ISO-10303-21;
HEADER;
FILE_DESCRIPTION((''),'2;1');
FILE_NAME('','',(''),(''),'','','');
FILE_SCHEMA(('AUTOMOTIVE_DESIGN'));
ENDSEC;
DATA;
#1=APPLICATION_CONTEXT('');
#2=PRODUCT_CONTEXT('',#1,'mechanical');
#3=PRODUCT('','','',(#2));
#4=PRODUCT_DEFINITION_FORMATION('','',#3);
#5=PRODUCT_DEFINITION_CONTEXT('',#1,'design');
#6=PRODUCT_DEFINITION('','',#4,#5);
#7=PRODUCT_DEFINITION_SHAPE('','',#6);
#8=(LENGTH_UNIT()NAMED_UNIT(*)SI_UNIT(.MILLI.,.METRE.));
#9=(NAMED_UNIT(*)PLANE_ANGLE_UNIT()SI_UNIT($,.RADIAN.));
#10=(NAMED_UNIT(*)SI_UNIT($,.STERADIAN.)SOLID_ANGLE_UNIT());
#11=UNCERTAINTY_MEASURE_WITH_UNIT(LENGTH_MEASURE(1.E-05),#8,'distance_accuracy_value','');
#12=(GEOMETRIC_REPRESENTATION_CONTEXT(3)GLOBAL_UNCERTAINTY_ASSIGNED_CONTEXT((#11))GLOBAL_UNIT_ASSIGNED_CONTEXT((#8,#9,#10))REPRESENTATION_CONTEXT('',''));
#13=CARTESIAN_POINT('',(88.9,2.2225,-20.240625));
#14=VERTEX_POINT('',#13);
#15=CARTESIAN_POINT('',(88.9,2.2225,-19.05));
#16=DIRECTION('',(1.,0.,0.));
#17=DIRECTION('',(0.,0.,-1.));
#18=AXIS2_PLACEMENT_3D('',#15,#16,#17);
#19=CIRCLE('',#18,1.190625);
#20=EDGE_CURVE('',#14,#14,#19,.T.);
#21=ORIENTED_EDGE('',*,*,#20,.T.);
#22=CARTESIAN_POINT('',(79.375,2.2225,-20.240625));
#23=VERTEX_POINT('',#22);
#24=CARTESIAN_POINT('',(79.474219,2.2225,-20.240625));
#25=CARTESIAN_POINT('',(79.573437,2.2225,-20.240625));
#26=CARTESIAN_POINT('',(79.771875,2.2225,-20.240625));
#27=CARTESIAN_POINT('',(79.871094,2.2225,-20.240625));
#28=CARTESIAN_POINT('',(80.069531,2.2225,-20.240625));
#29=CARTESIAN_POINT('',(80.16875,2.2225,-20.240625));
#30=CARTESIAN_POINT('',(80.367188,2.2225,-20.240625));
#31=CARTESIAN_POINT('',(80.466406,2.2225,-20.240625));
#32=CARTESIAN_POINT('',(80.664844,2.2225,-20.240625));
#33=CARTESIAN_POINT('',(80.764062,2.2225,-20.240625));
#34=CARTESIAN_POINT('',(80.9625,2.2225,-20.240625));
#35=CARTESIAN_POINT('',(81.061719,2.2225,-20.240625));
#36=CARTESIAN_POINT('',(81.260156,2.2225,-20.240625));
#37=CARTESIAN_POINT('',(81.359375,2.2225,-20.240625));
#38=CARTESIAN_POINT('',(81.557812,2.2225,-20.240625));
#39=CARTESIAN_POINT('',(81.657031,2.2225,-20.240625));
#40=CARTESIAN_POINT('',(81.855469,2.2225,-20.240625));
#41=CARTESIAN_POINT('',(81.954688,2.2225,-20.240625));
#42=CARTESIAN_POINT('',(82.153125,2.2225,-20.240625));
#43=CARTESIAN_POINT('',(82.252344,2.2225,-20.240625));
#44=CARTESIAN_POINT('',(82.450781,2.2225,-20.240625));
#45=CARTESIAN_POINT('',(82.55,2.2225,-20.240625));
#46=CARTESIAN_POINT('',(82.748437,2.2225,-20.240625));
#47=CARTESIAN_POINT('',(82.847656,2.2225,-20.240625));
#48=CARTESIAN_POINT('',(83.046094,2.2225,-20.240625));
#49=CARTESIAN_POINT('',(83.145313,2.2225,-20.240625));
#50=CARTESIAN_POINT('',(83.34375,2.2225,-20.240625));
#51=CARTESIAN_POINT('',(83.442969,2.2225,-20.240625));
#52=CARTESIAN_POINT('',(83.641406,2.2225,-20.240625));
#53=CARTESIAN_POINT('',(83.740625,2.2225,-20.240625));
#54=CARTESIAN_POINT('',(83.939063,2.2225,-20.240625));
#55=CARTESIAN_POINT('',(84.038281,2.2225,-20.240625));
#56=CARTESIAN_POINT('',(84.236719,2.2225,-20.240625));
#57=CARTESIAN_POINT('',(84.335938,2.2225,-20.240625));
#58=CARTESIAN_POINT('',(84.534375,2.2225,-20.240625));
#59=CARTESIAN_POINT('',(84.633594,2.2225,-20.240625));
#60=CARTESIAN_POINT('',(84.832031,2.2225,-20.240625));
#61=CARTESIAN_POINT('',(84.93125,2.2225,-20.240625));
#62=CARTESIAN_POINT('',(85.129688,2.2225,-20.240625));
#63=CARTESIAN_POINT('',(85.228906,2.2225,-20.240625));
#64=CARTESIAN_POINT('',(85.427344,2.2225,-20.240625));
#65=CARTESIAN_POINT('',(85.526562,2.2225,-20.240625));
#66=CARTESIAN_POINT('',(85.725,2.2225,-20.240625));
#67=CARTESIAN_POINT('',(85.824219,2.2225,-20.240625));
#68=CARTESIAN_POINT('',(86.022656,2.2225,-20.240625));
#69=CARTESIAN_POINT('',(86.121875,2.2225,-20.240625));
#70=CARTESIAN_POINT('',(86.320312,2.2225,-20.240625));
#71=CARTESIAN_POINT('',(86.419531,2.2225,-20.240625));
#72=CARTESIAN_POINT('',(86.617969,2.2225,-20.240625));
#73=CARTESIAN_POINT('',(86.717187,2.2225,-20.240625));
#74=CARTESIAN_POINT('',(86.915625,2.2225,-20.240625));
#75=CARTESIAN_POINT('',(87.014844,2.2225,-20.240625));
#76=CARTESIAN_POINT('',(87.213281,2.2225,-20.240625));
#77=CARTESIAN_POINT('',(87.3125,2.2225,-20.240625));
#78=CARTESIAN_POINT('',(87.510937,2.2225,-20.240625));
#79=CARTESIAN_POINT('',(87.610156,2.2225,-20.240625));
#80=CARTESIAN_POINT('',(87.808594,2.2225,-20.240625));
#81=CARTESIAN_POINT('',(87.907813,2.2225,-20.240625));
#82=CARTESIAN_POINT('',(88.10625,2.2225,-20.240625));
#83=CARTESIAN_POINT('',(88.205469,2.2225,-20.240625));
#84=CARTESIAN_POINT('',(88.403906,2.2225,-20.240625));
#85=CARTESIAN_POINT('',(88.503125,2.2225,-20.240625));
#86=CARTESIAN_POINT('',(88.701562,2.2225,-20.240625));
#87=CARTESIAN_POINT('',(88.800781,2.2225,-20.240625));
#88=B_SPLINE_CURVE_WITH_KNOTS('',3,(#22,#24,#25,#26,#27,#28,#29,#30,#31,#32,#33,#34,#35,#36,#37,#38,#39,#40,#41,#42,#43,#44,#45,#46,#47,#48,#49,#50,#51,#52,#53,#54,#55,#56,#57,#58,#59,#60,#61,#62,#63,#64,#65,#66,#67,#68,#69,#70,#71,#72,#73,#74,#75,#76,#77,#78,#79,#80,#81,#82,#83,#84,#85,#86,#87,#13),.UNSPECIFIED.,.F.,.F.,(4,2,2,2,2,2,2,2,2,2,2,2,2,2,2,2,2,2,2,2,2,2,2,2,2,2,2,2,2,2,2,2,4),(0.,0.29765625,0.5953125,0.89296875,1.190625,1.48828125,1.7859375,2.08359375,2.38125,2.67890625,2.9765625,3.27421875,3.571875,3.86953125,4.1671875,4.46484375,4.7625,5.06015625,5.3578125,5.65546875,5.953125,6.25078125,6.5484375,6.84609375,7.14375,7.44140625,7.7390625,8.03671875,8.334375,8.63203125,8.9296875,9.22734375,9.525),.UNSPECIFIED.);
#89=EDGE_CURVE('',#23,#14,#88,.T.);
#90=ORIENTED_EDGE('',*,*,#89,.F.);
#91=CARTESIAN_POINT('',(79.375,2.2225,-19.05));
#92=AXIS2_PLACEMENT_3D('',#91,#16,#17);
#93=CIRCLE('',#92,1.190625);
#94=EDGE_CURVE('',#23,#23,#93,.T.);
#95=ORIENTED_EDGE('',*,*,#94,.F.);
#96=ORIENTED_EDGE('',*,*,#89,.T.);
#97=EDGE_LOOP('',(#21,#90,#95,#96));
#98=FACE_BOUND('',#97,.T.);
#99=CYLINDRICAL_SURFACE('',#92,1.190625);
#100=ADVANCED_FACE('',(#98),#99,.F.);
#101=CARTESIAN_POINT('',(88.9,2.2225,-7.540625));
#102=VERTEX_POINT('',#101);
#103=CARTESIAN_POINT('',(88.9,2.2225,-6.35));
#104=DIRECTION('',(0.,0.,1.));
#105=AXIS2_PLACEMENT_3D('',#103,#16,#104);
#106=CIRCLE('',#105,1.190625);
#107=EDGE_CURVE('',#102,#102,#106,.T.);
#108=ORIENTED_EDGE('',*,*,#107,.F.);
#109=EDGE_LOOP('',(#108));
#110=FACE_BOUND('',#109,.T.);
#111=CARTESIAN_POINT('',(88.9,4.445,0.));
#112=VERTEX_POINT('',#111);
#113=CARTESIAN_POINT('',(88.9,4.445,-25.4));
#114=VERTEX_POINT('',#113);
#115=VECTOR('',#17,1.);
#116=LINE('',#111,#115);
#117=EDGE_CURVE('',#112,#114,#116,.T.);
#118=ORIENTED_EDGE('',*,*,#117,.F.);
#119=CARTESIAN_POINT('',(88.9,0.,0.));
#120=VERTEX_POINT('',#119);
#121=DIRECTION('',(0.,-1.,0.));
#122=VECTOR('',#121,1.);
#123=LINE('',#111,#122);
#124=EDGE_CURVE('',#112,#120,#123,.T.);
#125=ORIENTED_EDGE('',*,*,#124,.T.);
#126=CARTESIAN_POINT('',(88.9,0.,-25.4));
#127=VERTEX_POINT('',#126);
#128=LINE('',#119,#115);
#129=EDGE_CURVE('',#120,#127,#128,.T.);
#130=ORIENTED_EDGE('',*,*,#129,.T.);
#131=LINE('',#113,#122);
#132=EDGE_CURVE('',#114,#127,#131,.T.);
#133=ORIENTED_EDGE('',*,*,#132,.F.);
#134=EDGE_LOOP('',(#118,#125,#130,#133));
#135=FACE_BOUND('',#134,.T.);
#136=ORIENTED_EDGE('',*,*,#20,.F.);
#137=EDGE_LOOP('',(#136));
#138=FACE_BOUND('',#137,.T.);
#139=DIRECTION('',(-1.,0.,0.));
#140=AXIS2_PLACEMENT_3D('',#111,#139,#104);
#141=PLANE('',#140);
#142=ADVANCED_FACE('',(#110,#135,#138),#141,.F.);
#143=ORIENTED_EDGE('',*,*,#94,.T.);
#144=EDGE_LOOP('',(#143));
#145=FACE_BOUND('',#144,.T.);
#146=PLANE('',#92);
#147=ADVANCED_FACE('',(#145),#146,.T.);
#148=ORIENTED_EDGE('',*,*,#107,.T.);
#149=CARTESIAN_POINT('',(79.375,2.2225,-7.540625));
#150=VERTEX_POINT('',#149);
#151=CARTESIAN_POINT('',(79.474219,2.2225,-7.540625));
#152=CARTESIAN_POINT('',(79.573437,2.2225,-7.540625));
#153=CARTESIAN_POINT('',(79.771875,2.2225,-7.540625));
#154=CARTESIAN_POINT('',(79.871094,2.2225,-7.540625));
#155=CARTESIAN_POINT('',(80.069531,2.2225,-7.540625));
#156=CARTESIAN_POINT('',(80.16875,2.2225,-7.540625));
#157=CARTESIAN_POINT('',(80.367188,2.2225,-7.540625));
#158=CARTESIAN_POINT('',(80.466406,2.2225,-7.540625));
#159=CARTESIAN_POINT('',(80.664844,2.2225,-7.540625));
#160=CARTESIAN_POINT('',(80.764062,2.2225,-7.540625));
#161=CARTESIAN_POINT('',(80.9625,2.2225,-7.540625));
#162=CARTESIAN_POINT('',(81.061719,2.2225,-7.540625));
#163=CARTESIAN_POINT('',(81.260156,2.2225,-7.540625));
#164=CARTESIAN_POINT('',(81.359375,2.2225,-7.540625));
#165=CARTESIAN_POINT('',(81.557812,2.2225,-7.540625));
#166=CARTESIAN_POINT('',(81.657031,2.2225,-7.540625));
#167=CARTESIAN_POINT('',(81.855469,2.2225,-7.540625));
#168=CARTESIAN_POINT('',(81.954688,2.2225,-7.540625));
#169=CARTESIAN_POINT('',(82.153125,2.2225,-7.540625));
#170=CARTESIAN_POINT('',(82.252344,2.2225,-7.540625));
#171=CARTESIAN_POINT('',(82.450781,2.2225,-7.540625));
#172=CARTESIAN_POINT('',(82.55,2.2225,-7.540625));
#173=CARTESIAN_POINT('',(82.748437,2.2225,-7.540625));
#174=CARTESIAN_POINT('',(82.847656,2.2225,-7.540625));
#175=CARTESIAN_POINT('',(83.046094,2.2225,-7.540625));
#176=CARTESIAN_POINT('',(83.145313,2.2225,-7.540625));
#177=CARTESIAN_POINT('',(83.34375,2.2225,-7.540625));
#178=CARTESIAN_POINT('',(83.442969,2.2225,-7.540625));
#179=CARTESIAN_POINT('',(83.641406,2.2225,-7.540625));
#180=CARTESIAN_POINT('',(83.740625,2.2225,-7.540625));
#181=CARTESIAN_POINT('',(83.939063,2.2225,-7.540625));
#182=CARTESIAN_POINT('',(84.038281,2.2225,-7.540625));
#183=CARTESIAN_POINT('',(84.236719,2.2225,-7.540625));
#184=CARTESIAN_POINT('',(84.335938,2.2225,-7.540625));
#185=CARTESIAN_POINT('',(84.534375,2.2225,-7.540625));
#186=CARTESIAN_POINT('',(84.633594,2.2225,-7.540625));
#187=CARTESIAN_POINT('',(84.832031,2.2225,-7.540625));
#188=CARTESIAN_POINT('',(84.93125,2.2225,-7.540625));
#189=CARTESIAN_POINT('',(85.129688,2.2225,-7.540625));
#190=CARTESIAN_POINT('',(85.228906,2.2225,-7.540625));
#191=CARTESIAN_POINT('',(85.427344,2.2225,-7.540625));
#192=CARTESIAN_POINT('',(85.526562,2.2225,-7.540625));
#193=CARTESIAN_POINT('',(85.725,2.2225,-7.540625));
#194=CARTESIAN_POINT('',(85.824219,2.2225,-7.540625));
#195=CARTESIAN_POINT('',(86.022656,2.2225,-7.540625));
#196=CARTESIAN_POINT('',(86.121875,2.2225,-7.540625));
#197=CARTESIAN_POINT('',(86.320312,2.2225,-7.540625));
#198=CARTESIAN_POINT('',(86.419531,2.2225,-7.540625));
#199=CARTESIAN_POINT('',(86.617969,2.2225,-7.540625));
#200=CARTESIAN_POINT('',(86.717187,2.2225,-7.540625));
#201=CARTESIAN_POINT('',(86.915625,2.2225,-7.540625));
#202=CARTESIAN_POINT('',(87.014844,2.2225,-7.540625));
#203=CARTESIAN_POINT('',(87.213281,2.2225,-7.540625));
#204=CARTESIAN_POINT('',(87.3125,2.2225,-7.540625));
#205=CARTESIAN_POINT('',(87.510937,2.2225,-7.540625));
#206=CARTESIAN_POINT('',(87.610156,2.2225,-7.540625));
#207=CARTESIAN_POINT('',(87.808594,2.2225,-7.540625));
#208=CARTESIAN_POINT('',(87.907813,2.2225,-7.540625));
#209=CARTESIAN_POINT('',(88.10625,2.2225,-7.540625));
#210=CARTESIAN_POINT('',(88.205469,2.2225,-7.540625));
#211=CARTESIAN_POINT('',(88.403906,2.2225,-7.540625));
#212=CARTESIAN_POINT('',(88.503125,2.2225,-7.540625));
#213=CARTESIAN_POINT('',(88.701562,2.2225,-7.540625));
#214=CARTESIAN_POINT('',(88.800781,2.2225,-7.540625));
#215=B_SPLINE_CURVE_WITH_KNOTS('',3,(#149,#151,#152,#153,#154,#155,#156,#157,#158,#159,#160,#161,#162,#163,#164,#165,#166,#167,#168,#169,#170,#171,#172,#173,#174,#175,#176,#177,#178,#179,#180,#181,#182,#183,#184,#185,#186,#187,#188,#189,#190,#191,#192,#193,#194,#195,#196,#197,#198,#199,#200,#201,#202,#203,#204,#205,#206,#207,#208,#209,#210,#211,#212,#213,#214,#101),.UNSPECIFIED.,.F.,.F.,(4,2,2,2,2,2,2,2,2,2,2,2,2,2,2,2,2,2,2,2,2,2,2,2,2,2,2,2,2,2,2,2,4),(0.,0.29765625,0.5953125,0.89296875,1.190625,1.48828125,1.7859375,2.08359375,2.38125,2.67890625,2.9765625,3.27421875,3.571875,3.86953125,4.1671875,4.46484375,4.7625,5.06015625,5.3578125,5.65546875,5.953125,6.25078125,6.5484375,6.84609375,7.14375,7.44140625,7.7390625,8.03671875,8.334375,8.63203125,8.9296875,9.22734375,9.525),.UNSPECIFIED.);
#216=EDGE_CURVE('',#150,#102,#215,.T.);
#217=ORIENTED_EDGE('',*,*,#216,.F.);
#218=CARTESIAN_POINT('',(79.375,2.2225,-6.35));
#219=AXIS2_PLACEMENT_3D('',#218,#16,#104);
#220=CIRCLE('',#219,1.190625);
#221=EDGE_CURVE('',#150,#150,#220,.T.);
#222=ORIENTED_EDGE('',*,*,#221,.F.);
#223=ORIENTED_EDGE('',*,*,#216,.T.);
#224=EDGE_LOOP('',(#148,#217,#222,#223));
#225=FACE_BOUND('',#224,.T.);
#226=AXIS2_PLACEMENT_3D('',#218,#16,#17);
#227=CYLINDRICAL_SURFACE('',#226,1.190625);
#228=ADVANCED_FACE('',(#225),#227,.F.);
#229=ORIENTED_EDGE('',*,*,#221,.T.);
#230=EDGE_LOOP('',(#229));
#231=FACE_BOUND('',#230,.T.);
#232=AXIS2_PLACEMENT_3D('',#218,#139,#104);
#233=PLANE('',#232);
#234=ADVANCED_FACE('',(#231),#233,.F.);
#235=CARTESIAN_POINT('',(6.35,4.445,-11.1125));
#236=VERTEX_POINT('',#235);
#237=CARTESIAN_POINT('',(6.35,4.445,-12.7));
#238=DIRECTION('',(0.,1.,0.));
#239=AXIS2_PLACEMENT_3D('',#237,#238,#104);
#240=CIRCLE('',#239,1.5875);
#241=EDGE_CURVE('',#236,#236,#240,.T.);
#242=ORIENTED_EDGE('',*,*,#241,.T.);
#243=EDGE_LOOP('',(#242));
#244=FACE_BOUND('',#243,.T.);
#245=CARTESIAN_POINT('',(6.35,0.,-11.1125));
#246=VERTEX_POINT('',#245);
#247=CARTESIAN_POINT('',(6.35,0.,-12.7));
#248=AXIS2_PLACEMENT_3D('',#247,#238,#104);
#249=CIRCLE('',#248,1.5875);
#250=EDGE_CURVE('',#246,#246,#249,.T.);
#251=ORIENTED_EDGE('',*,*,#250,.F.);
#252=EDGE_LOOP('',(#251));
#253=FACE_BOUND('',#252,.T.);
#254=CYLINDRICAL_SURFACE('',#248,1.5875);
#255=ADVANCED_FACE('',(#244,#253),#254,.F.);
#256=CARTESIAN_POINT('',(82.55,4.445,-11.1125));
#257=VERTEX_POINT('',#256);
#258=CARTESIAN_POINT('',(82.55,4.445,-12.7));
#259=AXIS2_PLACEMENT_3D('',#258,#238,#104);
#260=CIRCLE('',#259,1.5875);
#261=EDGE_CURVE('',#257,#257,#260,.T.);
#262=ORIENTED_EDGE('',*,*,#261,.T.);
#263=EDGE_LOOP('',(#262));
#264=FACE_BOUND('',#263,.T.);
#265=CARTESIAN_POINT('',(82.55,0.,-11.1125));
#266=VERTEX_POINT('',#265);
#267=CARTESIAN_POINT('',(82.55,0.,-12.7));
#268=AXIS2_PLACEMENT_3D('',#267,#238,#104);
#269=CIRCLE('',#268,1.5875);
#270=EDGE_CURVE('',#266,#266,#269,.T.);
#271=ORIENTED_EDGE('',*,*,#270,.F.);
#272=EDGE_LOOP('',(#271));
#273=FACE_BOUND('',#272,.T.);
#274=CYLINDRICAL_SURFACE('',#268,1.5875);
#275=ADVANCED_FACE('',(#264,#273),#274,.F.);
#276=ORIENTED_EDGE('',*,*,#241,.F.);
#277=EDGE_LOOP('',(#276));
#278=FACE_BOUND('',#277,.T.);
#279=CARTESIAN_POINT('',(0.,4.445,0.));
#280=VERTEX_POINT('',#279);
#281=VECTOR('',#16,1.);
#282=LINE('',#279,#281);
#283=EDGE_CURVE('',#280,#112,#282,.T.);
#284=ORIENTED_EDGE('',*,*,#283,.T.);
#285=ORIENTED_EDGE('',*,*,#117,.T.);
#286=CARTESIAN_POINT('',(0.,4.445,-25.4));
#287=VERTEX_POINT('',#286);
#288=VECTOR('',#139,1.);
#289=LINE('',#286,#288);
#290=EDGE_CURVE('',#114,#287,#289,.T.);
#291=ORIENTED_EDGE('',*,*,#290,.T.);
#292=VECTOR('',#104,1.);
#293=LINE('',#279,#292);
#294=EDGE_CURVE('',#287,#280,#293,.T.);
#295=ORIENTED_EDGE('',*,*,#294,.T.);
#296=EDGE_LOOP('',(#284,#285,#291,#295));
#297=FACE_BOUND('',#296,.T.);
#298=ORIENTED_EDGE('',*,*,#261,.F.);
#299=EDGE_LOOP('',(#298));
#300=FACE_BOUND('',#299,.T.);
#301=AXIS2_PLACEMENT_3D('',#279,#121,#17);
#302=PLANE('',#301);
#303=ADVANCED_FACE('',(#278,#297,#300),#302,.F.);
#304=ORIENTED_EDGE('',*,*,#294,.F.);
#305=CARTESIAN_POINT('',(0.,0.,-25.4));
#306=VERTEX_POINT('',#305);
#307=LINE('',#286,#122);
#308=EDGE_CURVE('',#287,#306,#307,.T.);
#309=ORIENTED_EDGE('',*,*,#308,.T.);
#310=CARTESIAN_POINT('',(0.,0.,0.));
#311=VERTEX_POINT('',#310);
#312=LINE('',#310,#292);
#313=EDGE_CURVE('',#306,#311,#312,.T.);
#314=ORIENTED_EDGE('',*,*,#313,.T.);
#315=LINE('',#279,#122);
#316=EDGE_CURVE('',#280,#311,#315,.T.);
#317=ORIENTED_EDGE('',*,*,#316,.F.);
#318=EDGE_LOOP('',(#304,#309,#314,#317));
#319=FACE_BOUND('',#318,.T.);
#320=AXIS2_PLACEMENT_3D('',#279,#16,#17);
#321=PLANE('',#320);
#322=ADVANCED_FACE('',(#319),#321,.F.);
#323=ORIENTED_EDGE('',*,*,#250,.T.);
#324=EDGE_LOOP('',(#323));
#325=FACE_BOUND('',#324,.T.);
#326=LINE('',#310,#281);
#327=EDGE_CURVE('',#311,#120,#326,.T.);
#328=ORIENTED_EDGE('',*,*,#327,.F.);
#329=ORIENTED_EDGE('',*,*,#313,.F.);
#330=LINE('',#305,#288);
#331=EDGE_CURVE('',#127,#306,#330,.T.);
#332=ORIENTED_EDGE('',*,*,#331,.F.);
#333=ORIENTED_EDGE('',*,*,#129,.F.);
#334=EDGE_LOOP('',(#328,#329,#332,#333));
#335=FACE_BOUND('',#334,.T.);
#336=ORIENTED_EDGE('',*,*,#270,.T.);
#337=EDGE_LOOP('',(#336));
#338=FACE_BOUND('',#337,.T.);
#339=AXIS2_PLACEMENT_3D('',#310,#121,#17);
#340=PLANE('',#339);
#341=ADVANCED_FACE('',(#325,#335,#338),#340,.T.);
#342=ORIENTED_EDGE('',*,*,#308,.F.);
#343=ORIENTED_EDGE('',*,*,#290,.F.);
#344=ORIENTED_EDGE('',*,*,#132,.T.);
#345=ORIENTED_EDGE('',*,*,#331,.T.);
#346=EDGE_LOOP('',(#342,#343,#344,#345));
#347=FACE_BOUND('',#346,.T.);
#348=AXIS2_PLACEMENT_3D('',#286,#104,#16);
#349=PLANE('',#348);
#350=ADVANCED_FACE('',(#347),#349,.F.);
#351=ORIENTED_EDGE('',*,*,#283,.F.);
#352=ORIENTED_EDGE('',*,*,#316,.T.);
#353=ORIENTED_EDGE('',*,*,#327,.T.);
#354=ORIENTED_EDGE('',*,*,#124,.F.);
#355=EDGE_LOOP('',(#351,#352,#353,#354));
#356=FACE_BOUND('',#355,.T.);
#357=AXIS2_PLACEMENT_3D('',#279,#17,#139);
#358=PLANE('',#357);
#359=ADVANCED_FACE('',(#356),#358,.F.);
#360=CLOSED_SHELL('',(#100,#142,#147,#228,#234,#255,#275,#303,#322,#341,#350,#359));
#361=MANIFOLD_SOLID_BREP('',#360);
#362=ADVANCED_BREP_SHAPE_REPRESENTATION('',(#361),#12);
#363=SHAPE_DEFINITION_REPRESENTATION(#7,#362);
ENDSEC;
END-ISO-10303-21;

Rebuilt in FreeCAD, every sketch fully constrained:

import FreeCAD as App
import Part
import Sketcher
from FreeCAD import Vector
Q = App.Units.Quantity

doc = App.newDocument("Part")
body = doc.addObject("PartDesign::Body", "Body")

sketch1 = doc.addObject("Sketcher::SketchObject", "Sketch")
body.addObject(sketch1)
sketch1.AttachmentSupport = (doc.XZ_Plane, [""])
sketch1.MapMode = "FlatFace"
sketch1.addGeometry([
    Part.LineSegment(Vector(0, -25.4, 0), Vector(0, 0, 0)),
    Part.LineSegment(Vector(0, 0, 0), Vector(88.9, 0, 0)),
    Part.LineSegment(Vector(88.9, 0, 0), Vector(88.9, -25.4, 0)),
    Part.LineSegment(Vector(88.9, -25.4, 0), Vector(0, -25.4, 0)),
], False)
sketch1.addConstraint([
    Sketcher.Constraint("Coincident", 0, 2, 1, 1),
    Sketcher.Constraint("Coincident", 1, 2, 2, 1),
    Sketcher.Constraint("Coincident", 2, 2, 3, 1),
    Sketcher.Constraint("Coincident", 3, 2, 0, 1),
    Sketcher.Constraint("Vertical", 0),
    Sketcher.Constraint("Horizontal", 1),
    Sketcher.Constraint("Vertical", 2),
    Sketcher.Constraint("Horizontal", 3),
    Sketcher.Constraint("Coincident", 0, 2, -1, 1),
    Sketcher.Constraint("DistanceY", 0, 1, 0, 2, Q("1 in")),
    Sketcher.Constraint("DistanceX", 1, 1, 1, 2, Q("3.5 in")),
])
pad1 = doc.addObject("PartDesign::Pad", "Pad")
body.addObject(pad1)
pad1.Profile = sketch1
pad1.Length = Q("0.175 in")
pad1.Reversed = True

sketch2 = doc.addObject("Sketcher::SketchObject", "Sketch001")
body.addObject(sketch2)
sketch2.AttachmentSupport = (doc.YZ_Plane, [""])
sketch2.MapMode = "FlatFace"
sketch2.AttachmentOffset = App.Placement(Vector(0, 0, 3.5 * 25.4), App.Rotation())
sketch2.addGeometry([
    Part.Circle(Vector(2.2225, -19.05, 0), Vector(0, 0, 1), 1.190625),
    Part.Circle(Vector(2.2225, -6.35, 0), Vector(0, 0, 1), 1.190625),
], False)
sketch2.addConstraint([
    Sketcher.Constraint("Equal", 0, 1),
    Sketcher.Constraint("Vertical", 0, 3, 1, 3),
    Sketcher.Constraint("Diameter", 0, Q("0.09375 in")),
    Sketcher.Constraint("DistanceY", 0, 3, 1, 3, Q("0.5 in")),
    Sketcher.Constraint("DistanceY", 0, 3, -1, 1, Q("0.75 in")),
    Sketcher.Constraint("DistanceX", -1, 1, 0, 3, Q("0.0875 in")),
])
pocket1 = doc.addObject("PartDesign::Pocket", "Pocket")
body.addObject(pocket1)
pocket1.Profile = sketch2
pocket1.Length = Q("0.375 in")

sketch3 = doc.addObject("Sketcher::SketchObject", "Sketch002")
body.addObject(sketch3)
sketch3.AttachmentSupport = (doc.XZ_Plane, [""])
sketch3.MapMode = "FlatFace"
sketch3.AttachmentOffset = App.Placement(Vector(0, 0, -0.175 * 25.4), App.Rotation())
sketch3.addGeometry([
    Part.Circle(Vector(6.35, -12.7, 0), Vector(0, 0, 1), 1.5875),
    Part.Circle(Vector(82.55, -12.7, 0), Vector(0, 0, 1), 1.5875),
], False)
sketch3.addConstraint([
    Sketcher.Constraint("Equal", 0, 1),
    Sketcher.Constraint("Horizontal", 0, 3, 1, 3),
    Sketcher.Constraint("Diameter", 0, Q("0.125 in")),
    Sketcher.Constraint("DistanceX", 0, 3, 1, 3, Q("3 in")),
    Sketcher.Constraint("DistanceY", 0, 3, -1, 1, Q("0.5 in")),
    Sketcher.Constraint("DistanceX", -1, 1, 0, 3, Q("0.25 in")),
])
pocket2 = doc.addObject("PartDesign::Pocket", "Pocket001")
body.addObject(pocket2)
pocket2.Profile = sketch3
pocket2.Type = "ThroughAll"
pocket2.Reversed = True

doc.recompute()
